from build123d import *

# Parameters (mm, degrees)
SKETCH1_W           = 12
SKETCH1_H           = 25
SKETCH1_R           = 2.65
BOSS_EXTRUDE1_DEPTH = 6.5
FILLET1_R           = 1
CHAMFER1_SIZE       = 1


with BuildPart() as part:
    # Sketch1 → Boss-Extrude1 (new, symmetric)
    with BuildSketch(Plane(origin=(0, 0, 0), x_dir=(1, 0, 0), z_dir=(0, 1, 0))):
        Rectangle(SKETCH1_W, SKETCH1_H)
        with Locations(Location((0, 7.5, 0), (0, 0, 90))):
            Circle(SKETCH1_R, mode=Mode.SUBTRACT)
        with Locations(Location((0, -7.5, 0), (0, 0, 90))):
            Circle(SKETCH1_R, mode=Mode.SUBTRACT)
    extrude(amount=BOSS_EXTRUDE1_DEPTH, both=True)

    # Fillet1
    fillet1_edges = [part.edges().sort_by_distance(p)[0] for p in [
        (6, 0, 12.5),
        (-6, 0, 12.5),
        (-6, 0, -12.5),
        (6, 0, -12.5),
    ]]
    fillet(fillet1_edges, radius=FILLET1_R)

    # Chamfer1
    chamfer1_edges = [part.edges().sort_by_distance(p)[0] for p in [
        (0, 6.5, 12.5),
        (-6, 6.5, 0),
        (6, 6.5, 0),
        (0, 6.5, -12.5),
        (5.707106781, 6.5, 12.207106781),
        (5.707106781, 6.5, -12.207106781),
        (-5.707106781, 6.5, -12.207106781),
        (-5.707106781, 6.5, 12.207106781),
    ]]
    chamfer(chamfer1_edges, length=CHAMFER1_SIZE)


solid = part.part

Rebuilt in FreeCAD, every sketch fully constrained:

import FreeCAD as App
import Part
import Sketcher

V = App.Vector


def edges_at(feature, points):
    """Names of the edges that pass closest to the given points."""
    edges = feature.Shape.Edges
    near = lambda p: min(range(len(edges)), key=lambda i: edges[i].distToShape(Part.Vertex(*p))[0])
    return sorted({f"Edge{near(p) + 1}" for p in points})

doc = App.newDocument("Part")
body = doc.addObject("PartDesign::Body", "Body")

# Sketch on XZ plane
sketch1 = body.newObject("Sketcher::SketchObject", "Sketch")
sketch1.AttachmentSupport = (doc.getObject("XZ_Plane"), [""])
sketch1.MapMode = "FlatFace"
sketch1.addGeometry([
    Part.LineSegment(V(-6, -12.5, 0), V(-6, 12.5, 0)),  # 0
    Part.LineSegment(V(-6, 12.5, 0), V(6, 12.5, 0)),  # 1
    Part.LineSegment(V(6, 12.5, 0), V(6, -12.5, 0)),  # 2
    Part.LineSegment(V(6, -12.5, 0), V(-6, -12.5, 0)),  # 3
    Part.Circle(V(0, 7.5, 0), V(0, 0, 1), 2.6),  # 4
    Part.Circle(V(0, -7.5, 0), V(0, 0, 1), 2.6),  # 5
], False)
sketch1.addConstraint([
    Sketcher.Constraint("Coincident", 0, 2, 1, 1),
    Sketcher.Constraint("Coincident", 1, 2, 2, 1),
    Sketcher.Constraint("Coincident", 2, 2, 3, 1),
    Sketcher.Constraint("Coincident", 3, 2, 0, 1),
    Sketcher.Constraint("Vertical", 0),
    Sketcher.Constraint("Horizontal", 1),
    Sketcher.Constraint("Vertical", 2),
    Sketcher.Constraint("Horizontal", 3),
    Sketcher.Constraint("Equal", 4, 5),
    Sketcher.Constraint("Symmetric", 4, 3, 5, 3, -1, 1),
    Sketcher.Constraint("Symmetric", 0, 2, 2, 2, -1, 1),
    Sketcher.Constraint("PointOnObject", 4, 3, -2),
    Sketcher.Constraint("Diameter", 4, 5.3),
    Sketcher.Constraint("DistanceX", 1, 1, 1, 2, 12.0),
    Sketcher.Constraint("DistanceY", 0, 1, 0, 2, 25.0),
    Sketcher.Constraint("DistanceY", 5, 3, 4, 3, 15.0),
])
pad1 = body.newObject("PartDesign::Pad", "Pad")
pad1.Profile = sketch1
pad1.Length = 13
pad1.Midplane = True
doc.recompute()

fillet = body.newObject("PartDesign::Fillet", "Fillet")
fillet.Base = (pad1, edges_at(pad1, [
    (6, 0, 12.5),
    (-6, 0, 12.5),
    (-6, 0, -12.5),
    (6, 0, -12.5),
]))
fillet.Radius = 1
doc.recompute()

chamfer = body.newObject("PartDesign::Chamfer", "Chamfer")
chamfer.Base = (fillet, edges_at(fillet, [
    (0, 6.5, 12.5),
    (-6, 6.5, 0),
    (6, 6.5, 0),
    (0, 6.5, -12.5),
    (5.707, 6.5, 12.207),
    (5.707, 6.5, -12.207),
    (-5.707, 6.5, -12.207),
    (-5.707, 6.5, 12.207),
]))
chamfer.Size = 1

doc.recompute()
